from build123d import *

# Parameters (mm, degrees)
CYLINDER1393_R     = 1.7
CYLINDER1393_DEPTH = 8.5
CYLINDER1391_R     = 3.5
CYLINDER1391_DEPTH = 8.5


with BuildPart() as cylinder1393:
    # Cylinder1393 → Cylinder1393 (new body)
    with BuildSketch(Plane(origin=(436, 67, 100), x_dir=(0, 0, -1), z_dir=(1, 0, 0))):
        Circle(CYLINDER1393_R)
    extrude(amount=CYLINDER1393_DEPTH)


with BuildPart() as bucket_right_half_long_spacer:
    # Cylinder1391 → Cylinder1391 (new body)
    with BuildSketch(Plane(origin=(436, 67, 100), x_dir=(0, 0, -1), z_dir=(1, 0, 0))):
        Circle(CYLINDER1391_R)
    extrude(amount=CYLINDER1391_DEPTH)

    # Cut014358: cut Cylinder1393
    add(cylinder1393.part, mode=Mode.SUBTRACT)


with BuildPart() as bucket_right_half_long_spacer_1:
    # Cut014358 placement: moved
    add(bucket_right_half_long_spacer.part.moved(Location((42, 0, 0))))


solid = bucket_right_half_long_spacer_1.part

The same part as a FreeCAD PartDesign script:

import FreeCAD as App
import Part
import Sketcher

V = App.Vector

doc = App.newDocument("Part")
params = doc.addObject("Spreadsheet::Sheet", "Params")
for row, (alias, value) in enumerate([
    ("sketch1_diameter", "3.4 mm"),
    ("pad1_length", "8.5 mm"),
    ("sketch2_diameter", "7 mm"),
    ("pad2_length", "8.5 mm"),
], start=1):
    params.set(f"A{row}", alias)
    params.set(f"B{row}", "=" + value)
    params.setAlias(f"B{row}", alias)

body = doc.addObject("PartDesign::Body", "Body")

# Sketch on YZ plane
sketch1 = body.newObject("Sketcher::SketchObject", "Sketch")
sketch1.AttachmentSupport = (doc.getObject("YZ_Plane"), [""])
sketch1.MapMode = "FlatFace"
sketch1.AttachmentOffset = App.Placement(V(0, 0, 436), App.Rotation())
sketch1.addGeometry(Part.Circle(V(67, 100, 0), V(0, 0, 1), 1.7), False)
sketch1.addConstraint(Sketcher.Constraint("Diameter", 0, 3.4))
sketch1.addConstraint(Sketcher.Constraint("DistanceX", -1, 1, 0, 3, 67.0))
sketch1.addConstraint(Sketcher.Constraint("DistanceY", -1, 1, 0, 3, 100.0))
sketch1.setExpression("Constraints[0]", "Params.sketch1_diameter")
pad1 = body.newObject("PartDesign::Pad", "Pad")
pad1.Profile = sketch1
pad1.setExpression("Length", "Params.pad1_length")
body2 = doc.addObject("PartDesign::Body", "Body001")

# Sketch on YZ plane
sketch2 = body2.newObject("Sketcher::SketchObject", "Sketch001")
sketch2.AttachmentSupport = (doc.getObject("YZ_Plane001"), [""])
sketch2.MapMode = "FlatFace"
sketch2.AttachmentOffset = App.Placement(V(0, 0, 436), App.Rotation())
sketch2.addGeometry(Part.Circle(V(67, 100, 0), V(0, 0, 1), 3.5), False)
sketch2.addConstraint(Sketcher.Constraint("Diameter", 0, 7.0))
sketch2.addConstraint(Sketcher.Constraint("DistanceX", -1, 1, 0, 3, 67.0))
sketch2.addConstraint(Sketcher.Constraint("DistanceY", -1, 1, 0, 3, 100.0))
sketch2.setExpression("Constraints[0]", "Params.sketch2_diameter")
pad2 = body2.newObject("PartDesign::Pad", "Pad001")
pad2.Profile = sketch2
pad2.setExpression("Length", "Params.pad2_length")
doc.recompute()

boolean = body2.newObject("PartDesign::Boolean", "Boolean")
boolean.Type = "Cut"
boolean.addObjects([body])
body3 = doc.addObject("PartDesign::Body", "Body002")
doc.recompute()

body2.Placement = App.Placement(V(42, 0, 0), App.Rotation(V(0, 0, 1), 0))
boolean2 = body3.newObject("PartDesign::Boolean", "Boolean001")
boolean2.Type = "Fuse"
boolean2.addObjects([body2])

doc.recompute()
